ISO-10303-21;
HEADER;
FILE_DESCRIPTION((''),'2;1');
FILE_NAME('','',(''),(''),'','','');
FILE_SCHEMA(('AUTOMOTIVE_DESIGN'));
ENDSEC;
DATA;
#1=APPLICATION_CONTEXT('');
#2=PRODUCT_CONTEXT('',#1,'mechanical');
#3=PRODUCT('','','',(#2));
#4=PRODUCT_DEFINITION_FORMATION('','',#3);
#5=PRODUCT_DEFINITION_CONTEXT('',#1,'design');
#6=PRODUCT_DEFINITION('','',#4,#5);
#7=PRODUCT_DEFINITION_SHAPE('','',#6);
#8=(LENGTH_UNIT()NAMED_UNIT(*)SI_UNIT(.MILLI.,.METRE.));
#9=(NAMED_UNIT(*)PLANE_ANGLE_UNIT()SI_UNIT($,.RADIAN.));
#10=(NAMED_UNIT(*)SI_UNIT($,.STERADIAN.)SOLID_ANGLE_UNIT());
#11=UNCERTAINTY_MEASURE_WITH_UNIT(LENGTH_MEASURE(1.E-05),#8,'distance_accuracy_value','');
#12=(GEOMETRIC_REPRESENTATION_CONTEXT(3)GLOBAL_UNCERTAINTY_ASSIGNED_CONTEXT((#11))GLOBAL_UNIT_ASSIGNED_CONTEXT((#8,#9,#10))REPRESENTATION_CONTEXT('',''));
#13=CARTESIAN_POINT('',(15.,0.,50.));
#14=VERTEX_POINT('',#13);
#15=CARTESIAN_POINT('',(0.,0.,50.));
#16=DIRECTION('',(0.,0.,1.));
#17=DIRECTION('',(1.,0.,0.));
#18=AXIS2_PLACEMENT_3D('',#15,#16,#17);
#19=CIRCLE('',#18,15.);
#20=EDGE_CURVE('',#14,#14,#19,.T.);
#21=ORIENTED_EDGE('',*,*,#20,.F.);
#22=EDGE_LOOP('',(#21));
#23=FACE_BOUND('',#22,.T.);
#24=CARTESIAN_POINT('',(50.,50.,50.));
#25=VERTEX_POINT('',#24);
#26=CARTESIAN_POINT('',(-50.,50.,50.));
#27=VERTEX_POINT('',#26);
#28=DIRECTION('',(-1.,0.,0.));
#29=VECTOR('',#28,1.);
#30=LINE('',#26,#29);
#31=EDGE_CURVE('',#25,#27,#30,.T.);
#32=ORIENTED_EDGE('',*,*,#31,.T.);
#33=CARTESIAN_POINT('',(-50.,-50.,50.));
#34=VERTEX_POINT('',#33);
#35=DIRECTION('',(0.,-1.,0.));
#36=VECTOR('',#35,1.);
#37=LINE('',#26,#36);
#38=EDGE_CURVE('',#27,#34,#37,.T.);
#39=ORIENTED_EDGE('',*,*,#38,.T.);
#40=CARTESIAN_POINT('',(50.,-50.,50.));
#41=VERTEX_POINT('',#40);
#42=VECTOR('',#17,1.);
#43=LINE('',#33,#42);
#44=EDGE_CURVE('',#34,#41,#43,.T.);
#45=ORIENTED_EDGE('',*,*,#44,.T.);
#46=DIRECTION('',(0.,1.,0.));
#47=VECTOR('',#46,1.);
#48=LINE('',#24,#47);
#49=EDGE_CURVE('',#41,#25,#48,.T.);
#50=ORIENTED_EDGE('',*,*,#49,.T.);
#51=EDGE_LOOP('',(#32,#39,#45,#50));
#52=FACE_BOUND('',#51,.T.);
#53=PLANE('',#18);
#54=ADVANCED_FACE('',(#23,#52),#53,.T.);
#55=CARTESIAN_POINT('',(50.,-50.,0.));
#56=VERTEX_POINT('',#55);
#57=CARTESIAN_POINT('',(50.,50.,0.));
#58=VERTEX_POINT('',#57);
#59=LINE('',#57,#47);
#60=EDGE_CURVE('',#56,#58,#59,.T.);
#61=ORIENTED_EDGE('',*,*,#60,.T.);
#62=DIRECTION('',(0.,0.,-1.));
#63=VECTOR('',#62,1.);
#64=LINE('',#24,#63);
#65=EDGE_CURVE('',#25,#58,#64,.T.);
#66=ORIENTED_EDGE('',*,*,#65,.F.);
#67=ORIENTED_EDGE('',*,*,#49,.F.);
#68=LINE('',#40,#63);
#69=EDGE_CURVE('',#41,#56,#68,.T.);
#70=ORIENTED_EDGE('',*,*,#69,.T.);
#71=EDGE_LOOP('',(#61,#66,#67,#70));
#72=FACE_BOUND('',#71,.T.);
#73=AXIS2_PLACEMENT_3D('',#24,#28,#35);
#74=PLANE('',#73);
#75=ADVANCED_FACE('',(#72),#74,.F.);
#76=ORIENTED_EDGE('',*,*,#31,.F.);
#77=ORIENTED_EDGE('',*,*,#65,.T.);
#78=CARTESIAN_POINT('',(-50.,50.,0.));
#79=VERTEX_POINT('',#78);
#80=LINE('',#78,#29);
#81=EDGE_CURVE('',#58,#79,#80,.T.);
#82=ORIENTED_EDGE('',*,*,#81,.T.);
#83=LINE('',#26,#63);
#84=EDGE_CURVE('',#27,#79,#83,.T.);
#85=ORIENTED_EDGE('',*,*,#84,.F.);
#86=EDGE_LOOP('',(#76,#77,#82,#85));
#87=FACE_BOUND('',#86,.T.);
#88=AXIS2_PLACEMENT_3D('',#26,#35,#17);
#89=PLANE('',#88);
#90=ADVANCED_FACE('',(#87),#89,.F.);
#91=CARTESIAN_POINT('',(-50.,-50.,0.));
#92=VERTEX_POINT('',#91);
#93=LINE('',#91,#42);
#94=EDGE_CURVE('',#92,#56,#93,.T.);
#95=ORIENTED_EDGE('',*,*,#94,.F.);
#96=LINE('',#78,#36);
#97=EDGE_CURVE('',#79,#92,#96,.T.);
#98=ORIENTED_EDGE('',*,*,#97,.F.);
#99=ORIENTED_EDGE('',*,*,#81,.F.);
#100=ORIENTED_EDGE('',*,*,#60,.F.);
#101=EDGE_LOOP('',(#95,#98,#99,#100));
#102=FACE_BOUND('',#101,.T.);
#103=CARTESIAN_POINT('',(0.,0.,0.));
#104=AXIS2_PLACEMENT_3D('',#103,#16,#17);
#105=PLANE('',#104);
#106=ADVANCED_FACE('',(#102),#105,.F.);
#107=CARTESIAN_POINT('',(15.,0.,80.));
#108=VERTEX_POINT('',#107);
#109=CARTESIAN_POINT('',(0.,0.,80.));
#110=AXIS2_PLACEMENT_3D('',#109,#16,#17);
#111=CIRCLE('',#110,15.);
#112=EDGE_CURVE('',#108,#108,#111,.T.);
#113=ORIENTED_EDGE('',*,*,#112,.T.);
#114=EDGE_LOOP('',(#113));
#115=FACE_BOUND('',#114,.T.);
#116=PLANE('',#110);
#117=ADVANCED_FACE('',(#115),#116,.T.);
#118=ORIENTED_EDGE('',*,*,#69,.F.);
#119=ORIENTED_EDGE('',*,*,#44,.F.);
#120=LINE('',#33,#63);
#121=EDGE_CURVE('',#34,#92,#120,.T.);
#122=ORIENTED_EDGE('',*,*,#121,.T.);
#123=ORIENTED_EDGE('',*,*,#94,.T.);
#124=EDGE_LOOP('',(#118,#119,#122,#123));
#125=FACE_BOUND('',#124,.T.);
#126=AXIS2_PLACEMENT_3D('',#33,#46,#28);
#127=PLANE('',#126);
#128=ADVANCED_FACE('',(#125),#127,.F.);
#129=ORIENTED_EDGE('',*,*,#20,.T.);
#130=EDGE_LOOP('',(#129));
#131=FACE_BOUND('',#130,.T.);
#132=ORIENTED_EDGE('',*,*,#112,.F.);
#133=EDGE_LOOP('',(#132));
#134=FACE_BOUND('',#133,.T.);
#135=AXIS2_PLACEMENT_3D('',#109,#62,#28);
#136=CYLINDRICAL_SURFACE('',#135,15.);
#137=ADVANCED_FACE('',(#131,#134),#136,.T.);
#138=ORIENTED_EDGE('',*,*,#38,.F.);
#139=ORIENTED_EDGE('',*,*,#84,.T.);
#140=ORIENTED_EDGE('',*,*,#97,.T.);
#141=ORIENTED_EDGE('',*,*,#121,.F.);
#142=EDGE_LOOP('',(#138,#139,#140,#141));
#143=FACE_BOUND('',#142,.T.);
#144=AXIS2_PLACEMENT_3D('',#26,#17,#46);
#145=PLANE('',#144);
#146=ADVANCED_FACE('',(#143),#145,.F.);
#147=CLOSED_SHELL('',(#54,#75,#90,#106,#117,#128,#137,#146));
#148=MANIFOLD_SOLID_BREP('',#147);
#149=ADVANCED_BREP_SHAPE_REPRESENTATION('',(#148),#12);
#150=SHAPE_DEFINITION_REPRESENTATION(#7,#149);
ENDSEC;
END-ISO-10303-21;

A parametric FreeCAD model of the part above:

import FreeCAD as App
import Part
import Sketcher
from FreeCAD import Vector

doc = App.newDocument("Part")
body = doc.addObject("PartDesign::Body", "Body")

# Sketch on XY plane
sketch1 = body.newObject("Sketcher::SketchObject", "Sketch")
sketch1.AttachmentSupport = (doc.getObject("XY_Plane"), [""])
sketch1.MapMode = "FlatFace"
sketch1.addGeometry([
    Part.LineSegment(Vector(-50, 50, 0), Vector(-50, -50, 0)),
    Part.LineSegment(Vector(-50, -50, 0), Vector(50, -50, 0)),
    Part.LineSegment(Vector(50, -50, 0), Vector(50, 50, 0)),
    Part.LineSegment(Vector(50, 50, 0), Vector(-50, 50, 0)),
], False)
sketch1.addConstraint([
    Sketcher.Constraint("Coincident", 0, 2, 1, 1),
    Sketcher.Constraint("Coincident", 1, 2, 2, 1),
    Sketcher.Constraint("Coincident", 2, 2, 3, 1),
    Sketcher.Constraint("Coincident", 3, 2, 0, 1),
    Sketcher.Constraint("Vertical", 0),
    Sketcher.Constraint("Horizontal", 1),
    Sketcher.Constraint("Vertical", 2),
    Sketcher.Constraint("Horizontal", 3),
    Sketcher.Constraint("Symmetric", 0, 2, 2, 2, -1, 1),
    Sketcher.Constraint("Equal", 3, 0),
    Sketcher.Constraint("DistanceX", 1, 1, 1, 2, 100.0),
])
pad1 = body.newObject("PartDesign::Pad", "Pad")
pad1.Profile = sketch1
pad1.Length = 50

# Sketch on XY plane
sketch2 = body.newObject("Sketcher::SketchObject", "Sketch001")
sketch2.AttachmentSupport = (doc.getObject("XY_Plane"), [""])
sketch2.MapMode = "FlatFace"
sketch2.AttachmentOffset = App.Placement(Vector(0, 0, 50), App.Rotation())
sketch2.addGeometry(Part.Circle(Vector(0, 0, 0), Vector(0, 0, 1), 15), False)
sketch2.addConstraint([
    Sketcher.Constraint("Coincident", 0, 3, -1, 1),
    Sketcher.Constraint("Diameter", 0, 30.0),
])
pad2 = body.newObject("PartDesign::Pad", "Pad001")
pad2.Profile = sketch2
pad2.Length = 30

doc.recompute()
